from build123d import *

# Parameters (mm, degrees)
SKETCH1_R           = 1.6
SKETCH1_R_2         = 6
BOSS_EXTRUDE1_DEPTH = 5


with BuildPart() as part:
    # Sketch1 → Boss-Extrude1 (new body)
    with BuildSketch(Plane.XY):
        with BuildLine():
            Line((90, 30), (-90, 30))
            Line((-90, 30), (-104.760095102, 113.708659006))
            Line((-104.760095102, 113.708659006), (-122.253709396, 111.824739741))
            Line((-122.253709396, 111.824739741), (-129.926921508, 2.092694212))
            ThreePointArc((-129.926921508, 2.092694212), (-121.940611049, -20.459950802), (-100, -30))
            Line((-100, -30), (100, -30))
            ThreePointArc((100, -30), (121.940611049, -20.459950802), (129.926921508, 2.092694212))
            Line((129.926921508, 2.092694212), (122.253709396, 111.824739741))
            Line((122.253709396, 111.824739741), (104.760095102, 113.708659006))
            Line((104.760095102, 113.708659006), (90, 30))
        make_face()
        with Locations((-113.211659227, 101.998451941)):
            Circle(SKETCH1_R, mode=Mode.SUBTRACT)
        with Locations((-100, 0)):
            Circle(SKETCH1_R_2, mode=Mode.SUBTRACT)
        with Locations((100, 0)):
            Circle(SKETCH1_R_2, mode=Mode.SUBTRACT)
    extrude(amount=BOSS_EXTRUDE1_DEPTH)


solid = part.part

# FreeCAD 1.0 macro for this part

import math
import FreeCAD as App
import Part
import Sketcher

V = App.Vector
Q = App.Units.Quantity

doc = App.newDocument("Part")
body = doc.addObject("PartDesign::Body", "Body")

sketch1 = body.newObject("Sketcher::SketchObject", "Sketch")
sketch1.AttachmentSupport = (doc.getObject("XY_Plane"), [""])
sketch1.MapMode = "FlatFace"
sketch1.addGeometry(Part.LineSegment(V(90, 30, 0), V(-90, 30, 0)), False)
sketch1.addGeometry(Part.LineSegment(V(-90, 30, 0), V(-104.8, 113.7, 0)), False)
sketch1.addGeometry(Part.LineSegment(V(-104.8, 113.7, 0), V(-122.3, 111.8, 0)), False)
sketch1.addGeometry(Part.LineSegment(V(-122.3, 111.8, 0), V(-129.9, 2.1, 0)), False)
sketch1.addGeometry(Part.ArcOfCircle(Part.Circle(V(-100, 0, 0), V(0, 0, 1), 30), math.radians(176), math.radians(270)), False)
sketch1.addGeometry(Part.LineSegment(V(-100, -30, 0), V(100, -30, 0)), False)
sketch1.addGeometry(Part.ArcOfCircle(Part.Circle(V(100, 0, 0), V(0, 0, 1), 30), math.radians(-90), math.radians(4)), False)
sketch1.addGeometry(Part.LineSegment(V(129.9, 2.1, 0), V(122.3, 111.8, 0)), False)
sketch1.addGeometry(Part.LineSegment(V(122.3, 111.8, 0), V(104.8, 113.7, 0)), False)
sketch1.addGeometry(Part.LineSegment(V(104.8, 113.7, 0), V(90, 30, 0)), False)
sketch1.addGeometry(Part.Circle(V(-100, 0, 0), V(0, 0, 1), 6), False)
sketch1.addGeometry(Part.Circle(V(100, 0, 0), V(0, 0, 1), 6), False)
sketch1.addGeometry(Part.Circle(V(-113.2, 102, 0), V(0, 0, 1), 1.6), False)
sketch1.addConstraint(Sketcher.Constraint("Coincident", 0, 2, 1, 1))
sketch1.addConstraint(Sketcher.Constraint("Coincident", 1, 2, 2, 1))
sketch1.addConstraint(Sketcher.Constraint("Coincident", 2, 2, 3, 1))
sketch1.addConstraint(Sketcher.Constraint("Tangent", 3, 2, 4, 1))
sketch1.addConstraint(Sketcher.Constraint("Tangent", 4, 2, 5, 1))
sketch1.addConstraint(Sketcher.Constraint("Tangent", 5, 2, 6, 1))
sketch1.addConstraint(Sketcher.Constraint("Tangent", 6, 2, 7, 1))
sketch1.addConstraint(Sketcher.Constraint("Coincident", 7, 2, 8, 1))
sketch1.addConstraint(Sketcher.Constraint("Coincident", 8, 2, 9, 1))
sketch1.addConstraint(Sketcher.Constraint("Coincident", 9, 2, 0, 1))
sketch1.addConstraint(Sketcher.Constraint("Horizontal", 0))
sketch1.addConstraint(Sketcher.Constraint("Horizontal", 5))
sketch1.addConstraint(Sketcher.Constraint("Coincident", 10, 3, 4, 3))
sketch1.addConstraint(Sketcher.Constraint("Coincident", 11, 3, 6, 3))
sketch1.addConstraint(Sketcher.Constraint("Equal", 4, 6))
sketch1.addConstraint(Sketcher.Constraint("Equal", 10, 11))
sketch1.addConstraint(Sketcher.Constraint("Symmetric", 4, 3, 6, 3, -1, 1))
sketch1.addConstraint(Sketcher.Constraint("Symmetric", 2, 2, 7, 2, -2))
sketch1.addConstraint(Sketcher.Constraint("Symmetric", 1, 2, 8, 2, -2))
sketch1.addConstraint(Sketcher.Constraint("Equal", 1, 9))
sketch1.addConstraint(Sketcher.Constraint("Diameter", 10, 12.0))
sketch1.addConstraint(Sketcher.Constraint("Radius", 4, 30.0))
sketch1.addConstraint(Sketcher.Constraint("Diameter", 12, 3.2))
sketch1.addConstraint(Sketcher.Constraint("DistanceX", 0, 2, 0, 1, 180.0))
sketch1.addConstraint(Sketcher.Constraint("DistanceX", 5, 1, 5, 2, 200.0))
sketch1.addConstraint(Sketcher.Constraint("Angle", 1, Q("100 deg")))
sketch1.addConstraint(Sketcher.Constraint("Angle", 3, Q("-94 deg")))
sketch1.addConstraint(Sketcher.Constraint("Distance", 1, 85.0))
sketch1.addConstraint(Sketcher.Constraint("Distance", 3, 110.0))
sketch1.addConstraint(Sketcher.Constraint("DistanceY", -1, 1, 0, 2, 30.0))
sketch1.addConstraint(Sketcher.Constraint("DistanceX", 12, 3, -1, 1, 113.211659))
sketch1.addConstraint(Sketcher.Constraint("DistanceY", -1, 1, 12, 3, 101.998452))
pad1 = body.newObject("PartDesign::Pad", "Pad")
pad1.Profile = sketch1
pad1.Length = 5

doc.recompute()
